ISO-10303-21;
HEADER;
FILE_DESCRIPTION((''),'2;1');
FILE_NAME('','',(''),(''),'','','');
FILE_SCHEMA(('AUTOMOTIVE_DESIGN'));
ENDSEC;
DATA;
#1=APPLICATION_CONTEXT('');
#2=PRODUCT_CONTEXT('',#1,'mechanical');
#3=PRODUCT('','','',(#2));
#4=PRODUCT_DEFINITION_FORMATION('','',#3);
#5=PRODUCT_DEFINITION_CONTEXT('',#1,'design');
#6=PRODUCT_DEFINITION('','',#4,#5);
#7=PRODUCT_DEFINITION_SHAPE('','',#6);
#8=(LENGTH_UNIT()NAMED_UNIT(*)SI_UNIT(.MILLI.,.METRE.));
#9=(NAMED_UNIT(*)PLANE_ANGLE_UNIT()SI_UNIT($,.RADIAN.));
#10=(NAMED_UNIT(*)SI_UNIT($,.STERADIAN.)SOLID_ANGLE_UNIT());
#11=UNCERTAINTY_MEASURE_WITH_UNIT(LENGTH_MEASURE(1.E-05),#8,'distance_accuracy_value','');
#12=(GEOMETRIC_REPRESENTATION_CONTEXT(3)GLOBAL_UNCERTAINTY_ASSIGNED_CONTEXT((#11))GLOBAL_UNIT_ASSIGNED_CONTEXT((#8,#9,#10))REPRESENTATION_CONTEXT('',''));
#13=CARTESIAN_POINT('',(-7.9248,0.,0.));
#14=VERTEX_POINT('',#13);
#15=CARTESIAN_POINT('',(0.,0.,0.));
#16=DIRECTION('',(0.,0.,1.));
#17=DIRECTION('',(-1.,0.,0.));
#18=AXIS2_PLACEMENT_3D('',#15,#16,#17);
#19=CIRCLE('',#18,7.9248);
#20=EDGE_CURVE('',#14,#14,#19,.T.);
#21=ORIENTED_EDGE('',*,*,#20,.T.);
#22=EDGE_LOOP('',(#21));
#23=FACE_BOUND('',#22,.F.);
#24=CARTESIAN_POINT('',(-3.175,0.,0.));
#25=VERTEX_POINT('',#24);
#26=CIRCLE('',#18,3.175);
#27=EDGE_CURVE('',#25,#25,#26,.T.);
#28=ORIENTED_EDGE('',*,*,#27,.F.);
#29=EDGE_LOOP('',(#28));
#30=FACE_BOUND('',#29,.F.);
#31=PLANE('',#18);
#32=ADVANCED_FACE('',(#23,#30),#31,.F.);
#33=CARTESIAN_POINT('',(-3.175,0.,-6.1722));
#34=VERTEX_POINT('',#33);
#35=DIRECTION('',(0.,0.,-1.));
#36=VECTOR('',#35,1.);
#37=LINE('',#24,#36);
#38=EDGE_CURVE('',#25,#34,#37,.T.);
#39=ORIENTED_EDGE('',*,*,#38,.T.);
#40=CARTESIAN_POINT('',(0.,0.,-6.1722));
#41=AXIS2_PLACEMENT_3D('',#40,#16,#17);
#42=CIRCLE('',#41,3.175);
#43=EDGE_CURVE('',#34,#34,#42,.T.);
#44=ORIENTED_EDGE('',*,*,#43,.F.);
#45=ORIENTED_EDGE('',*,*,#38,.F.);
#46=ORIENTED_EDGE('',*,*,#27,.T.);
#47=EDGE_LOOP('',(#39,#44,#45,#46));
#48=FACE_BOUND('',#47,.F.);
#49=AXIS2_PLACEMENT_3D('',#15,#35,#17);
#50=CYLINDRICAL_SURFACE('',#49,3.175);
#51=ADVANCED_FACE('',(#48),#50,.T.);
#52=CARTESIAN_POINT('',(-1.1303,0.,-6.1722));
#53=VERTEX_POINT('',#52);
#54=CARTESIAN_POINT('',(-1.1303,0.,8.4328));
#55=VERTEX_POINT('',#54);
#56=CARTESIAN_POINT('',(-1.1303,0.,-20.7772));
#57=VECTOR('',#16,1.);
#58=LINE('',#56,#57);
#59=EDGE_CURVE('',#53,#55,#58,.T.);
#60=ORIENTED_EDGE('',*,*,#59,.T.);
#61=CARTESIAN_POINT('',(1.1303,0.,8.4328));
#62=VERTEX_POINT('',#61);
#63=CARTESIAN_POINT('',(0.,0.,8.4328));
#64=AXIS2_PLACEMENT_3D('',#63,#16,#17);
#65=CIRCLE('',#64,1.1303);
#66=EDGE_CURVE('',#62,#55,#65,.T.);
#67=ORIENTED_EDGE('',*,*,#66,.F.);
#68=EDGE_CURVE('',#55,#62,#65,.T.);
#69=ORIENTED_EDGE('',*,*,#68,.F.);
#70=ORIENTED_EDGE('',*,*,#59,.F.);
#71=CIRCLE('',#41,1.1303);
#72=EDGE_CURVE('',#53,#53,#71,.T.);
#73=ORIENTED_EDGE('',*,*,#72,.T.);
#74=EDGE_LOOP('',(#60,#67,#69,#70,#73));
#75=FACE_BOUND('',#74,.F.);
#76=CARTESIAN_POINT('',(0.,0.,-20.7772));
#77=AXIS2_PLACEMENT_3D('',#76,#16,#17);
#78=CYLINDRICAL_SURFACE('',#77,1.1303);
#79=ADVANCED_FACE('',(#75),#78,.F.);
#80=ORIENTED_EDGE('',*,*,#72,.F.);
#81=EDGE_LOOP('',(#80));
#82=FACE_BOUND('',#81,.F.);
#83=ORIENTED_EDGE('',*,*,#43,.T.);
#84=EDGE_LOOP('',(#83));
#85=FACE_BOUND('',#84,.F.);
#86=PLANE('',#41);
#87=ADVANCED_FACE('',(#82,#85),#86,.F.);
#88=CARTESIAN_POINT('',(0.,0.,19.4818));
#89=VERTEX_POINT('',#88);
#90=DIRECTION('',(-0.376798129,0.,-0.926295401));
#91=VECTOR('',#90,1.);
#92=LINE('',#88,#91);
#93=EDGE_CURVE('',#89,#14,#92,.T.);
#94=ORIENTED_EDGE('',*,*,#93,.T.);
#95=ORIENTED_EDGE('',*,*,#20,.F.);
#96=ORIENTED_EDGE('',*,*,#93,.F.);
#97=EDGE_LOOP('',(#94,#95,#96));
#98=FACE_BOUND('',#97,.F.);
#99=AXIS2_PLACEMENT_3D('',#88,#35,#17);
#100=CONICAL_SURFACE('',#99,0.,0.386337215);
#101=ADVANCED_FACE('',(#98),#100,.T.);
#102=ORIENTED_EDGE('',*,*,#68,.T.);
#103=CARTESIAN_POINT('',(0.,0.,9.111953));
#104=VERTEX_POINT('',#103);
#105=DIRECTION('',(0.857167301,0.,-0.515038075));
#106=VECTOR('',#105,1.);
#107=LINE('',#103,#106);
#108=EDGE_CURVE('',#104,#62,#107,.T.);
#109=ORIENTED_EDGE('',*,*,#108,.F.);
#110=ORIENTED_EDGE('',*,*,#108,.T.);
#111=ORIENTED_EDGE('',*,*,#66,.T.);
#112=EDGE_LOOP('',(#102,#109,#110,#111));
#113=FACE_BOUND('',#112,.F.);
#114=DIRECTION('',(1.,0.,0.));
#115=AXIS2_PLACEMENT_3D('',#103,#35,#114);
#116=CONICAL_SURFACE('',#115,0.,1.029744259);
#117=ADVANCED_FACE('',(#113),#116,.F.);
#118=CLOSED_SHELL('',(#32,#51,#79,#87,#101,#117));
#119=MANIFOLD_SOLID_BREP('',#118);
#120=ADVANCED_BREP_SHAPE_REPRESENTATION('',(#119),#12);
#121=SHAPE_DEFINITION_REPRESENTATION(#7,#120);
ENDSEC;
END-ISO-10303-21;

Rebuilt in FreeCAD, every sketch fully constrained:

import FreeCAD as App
import Part
import Sketcher
Q = App.Units.Quantity

doc = App.newDocument("Part")
body = doc.addObject("PartDesign::Body", "Body")

# Sketch on XZ plane
sketch1 = body.newObject("Sketcher::SketchObject", "Sketch")
sketch1.AttachmentSupport = (doc.getObject("XZ_Plane"), [""])
sketch1.MapMode = "FlatFace"
sketch1.addGeometry([
    Part.LineSegment(App.Vector(0, 19.5, 0), App.Vector(-7.9, 0, 0)),  # 0
    Part.LineSegment(App.Vector(-7.9, 0, 0), App.Vector(-3.2, 0, 0)),  # 1
    Part.LineSegment(App.Vector(-3.2, 0, 0), App.Vector(-3.2, -6.2, 0)),  # 2
    Part.LineSegment(App.Vector(-3.2, -6.2, 0), App.Vector(0, -6.2, 0)),  # 3
    Part.LineSegment(App.Vector(0, -6.2, 0), App.Vector(0, 19.5, 0)),  # 4
], False)
sketch1.addConstraint([
    Sketcher.Constraint("Coincident", 0, 2, 1, 1),
    Sketcher.Constraint("Coincident", 1, 2, 2, 1),
    Sketcher.Constraint("Coincident", 2, 2, 3, 1),
    Sketcher.Constraint("Coincident", 3, 2, 4, 1),
    Sketcher.Constraint("Coincident", 4, 2, 0, 1),
    Sketcher.Constraint("Horizontal", 1),
    Sketcher.Constraint("Vertical", 2),
    Sketcher.Constraint("Horizontal", 3),
    Sketcher.Constraint("Vertical", 4),
    Sketcher.Constraint("PointOnObject", 0, 2, -1),
    Sketcher.Constraint("PointOnObject", 3, 2, -2),
    Sketcher.Constraint("DistanceY", 4, 1, 4, 2, Q("1.01 in")),
    Sketcher.Constraint("DistanceX", 1, 1, 1, 2, Q("0.187 in")),
    Sketcher.Constraint("DistanceX", 3, 1, 3, 2, Q("0.125 in")),
    Sketcher.Constraint("DistanceY", 2, 2, 2, 1, Q("0.243 in")),
])
revolution = body.newObject("PartDesign::Revolution", "Revolution")
revolution.Profile = sketch1
revolution.ReferenceAxis = (sketch1, ["V_Axis"])
revolution.Angle = 360

# Sketch on XY plane
sketch2 = body.newObject("Sketcher::SketchObject", "Sketch001")
sketch2.AttachmentSupport = (doc.getObject("XY_Plane"), [""])
sketch2.MapMode = "FlatFace"
sketch2.AttachmentOffset = App.Placement(App.Vector(0, 0, -0.243 * 25.4), App.Rotation())
sketch2.addGeometry(Part.Circle(App.Vector(0, 0, 0), App.Vector(0, 0, 1), 1.1), False)
sketch2.addConstraint([
    Sketcher.Constraint("Coincident", 0, 3, -1, 1),
    Sketcher.Constraint("Diameter", 0, Q("0.089 in")),
])
doc.recompute()
hole = body.newObject("PartDesign::Hole", "Hole")
hole.Profile = sketch2
hole.ThreadType = "None"
hole.Diameter = Q("0.089 in")
hole.DepthType = "Dimension"
hole.Depth = Q("0.575 in")
hole.DrillPoint = "Angled"
hole.DrillPointAngle = 118
hole.Reversed = True

doc.recompute()
